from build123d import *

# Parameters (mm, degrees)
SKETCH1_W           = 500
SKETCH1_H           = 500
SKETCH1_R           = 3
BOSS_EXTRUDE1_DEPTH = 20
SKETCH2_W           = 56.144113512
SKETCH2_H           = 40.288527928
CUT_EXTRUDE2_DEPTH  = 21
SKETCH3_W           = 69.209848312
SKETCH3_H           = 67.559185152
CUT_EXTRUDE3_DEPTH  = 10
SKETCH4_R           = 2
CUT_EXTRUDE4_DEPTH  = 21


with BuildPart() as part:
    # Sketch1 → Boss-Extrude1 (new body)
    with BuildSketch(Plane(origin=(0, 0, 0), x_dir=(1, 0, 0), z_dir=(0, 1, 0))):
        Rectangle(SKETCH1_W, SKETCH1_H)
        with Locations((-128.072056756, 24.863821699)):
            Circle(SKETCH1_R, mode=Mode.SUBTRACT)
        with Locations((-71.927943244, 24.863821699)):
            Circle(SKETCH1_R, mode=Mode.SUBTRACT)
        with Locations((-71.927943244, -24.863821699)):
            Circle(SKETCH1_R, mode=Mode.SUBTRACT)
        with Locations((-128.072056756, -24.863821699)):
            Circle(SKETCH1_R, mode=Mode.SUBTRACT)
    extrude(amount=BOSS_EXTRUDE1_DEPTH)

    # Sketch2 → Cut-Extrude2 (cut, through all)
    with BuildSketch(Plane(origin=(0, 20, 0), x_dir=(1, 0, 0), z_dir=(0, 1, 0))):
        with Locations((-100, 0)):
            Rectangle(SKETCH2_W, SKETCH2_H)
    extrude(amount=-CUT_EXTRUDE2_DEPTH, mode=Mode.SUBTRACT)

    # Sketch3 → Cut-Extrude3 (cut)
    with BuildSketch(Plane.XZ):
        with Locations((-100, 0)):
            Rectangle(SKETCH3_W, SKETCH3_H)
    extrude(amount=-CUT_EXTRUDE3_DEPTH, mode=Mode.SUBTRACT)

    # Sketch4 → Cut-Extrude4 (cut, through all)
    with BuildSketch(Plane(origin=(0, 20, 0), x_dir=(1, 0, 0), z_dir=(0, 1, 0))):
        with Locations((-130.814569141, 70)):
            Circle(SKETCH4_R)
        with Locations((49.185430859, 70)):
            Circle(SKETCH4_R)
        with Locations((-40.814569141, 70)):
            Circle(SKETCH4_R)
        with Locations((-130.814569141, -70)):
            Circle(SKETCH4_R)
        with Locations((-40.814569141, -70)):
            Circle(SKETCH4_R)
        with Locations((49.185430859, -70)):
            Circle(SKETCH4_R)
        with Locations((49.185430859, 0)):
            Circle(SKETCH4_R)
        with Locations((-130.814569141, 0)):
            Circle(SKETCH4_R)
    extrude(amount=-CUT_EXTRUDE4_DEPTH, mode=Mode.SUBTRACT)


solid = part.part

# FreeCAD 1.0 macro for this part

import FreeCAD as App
import Part
import Sketcher


def add_polygon(sketch, points):
    """Adds a closed chain of lines whose ends are joined by coincident constraints."""
    first, n = sketch.GeometryCount, len(points)
    for a, b in zip(points, points[1:] + points[:1]):
        sketch.addGeometry(Part.LineSegment(App.Vector(*a, 0), App.Vector(*b, 0)), False)
    for i in range(n):
        sketch.addConstraint(Sketcher.Constraint("Coincident", first + i, 2, first + (i + 1) % n, 1))

doc = App.newDocument("Part")
body = doc.addObject("PartDesign::Body", "Body")

# Sketch on XZ plane
sketch1 = doc.addObject("Sketcher::SketchObject", "Sketch")
body.addObject(sketch1)
sketch1.AttachmentSupport = (doc.XZ_Plane, [""])
sketch1.MapMode = "FlatFace"
add_polygon(sketch1, [(-250, -250), (-250, 250), (250, 250), (250, -250)])  # lines 0-3
sketch1.addGeometry(Part.Circle(App.Vector(-128.072057, 24.863822, 0), App.Vector(0, 0, 1), 3), False)  # 4
sketch1.addGeometry(Part.Circle(App.Vector(-71.927943, 24.863822, 0), App.Vector(0, 0, 1), 3), False)  # 5
sketch1.addGeometry(Part.Circle(App.Vector(-128.072057, -24.863822, 0), App.Vector(0, 0, 1), 3), False)  # 6
sketch1.addGeometry(Part.Circle(App.Vector(-71.927943, -24.863822, 0), App.Vector(0, 0, 1), 3), False)  # 7
sketch1.addConstraint([
    Sketcher.Constraint("Vertical", 0),
    Sketcher.Constraint("Horizontal", 1),
    Sketcher.Constraint("Vertical", 2),
    Sketcher.Constraint("Horizontal", 3),
    Sketcher.Constraint("Equal", 4, 5),
    Sketcher.Constraint("Equal", 5, 6),
    Sketcher.Constraint("Equal", 6, 7),
    Sketcher.Constraint("Symmetric", 0, 2, 2, 2, -1, 1),
    Sketcher.Constraint("Symmetric", 4, 3, 6, 3, -1),
    Sketcher.Constraint("Symmetric", 5, 3, 7, 3, -1),
    Sketcher.Constraint("Horizontal", 4, 3, 5, 3),
    Sketcher.Constraint("Equal", 3, 0),
    Sketcher.Constraint("Diameter", 4, 6.0),
    Sketcher.Constraint("DistanceX", 1, 1, 1, 2, 500.0),
    Sketcher.Constraint("DistanceY", -1, 1, 4, 3, 24.863822),
    Sketcher.Constraint("DistanceX", 4, 3, -1, 1, 128.072057),
    Sketcher.Constraint("DistanceX", 5, 3, -1, 1, 71.927943),
])
pad1 = doc.addObject("PartDesign::Pad", "Pad")
body.addObject(pad1)
pad1.Profile = sketch1
pad1.Length = 20
pad1.Reversed = True

# Sketch on XZ plane
sketch2 = doc.addObject("Sketcher::SketchObject", "Sketch001")
body.addObject(sketch2)
sketch2.AttachmentSupport = (doc.XZ_Plane, [""])
sketch2.MapMode = "FlatFace"
sketch2.AttachmentOffset = App.Placement(App.Vector(0, 0, -20), App.Rotation())
add_polygon(sketch2, [(-128.072057, -20.144264), (-128.072057, 20.144264), (-71.927943, 20.144264), (-71.927943, -20.144264)])  # lines 0-3
sketch2.addConstraint([
    Sketcher.Constraint("Vertical", 0),
    Sketcher.Constraint("Horizontal", 1),
    Sketcher.Constraint("Vertical", 2),
    Sketcher.Constraint("Horizontal", 3),
    Sketcher.Constraint("DistanceX", 1, 1, 1, 2, 56.144114),
    Sketcher.Constraint("DistanceY", 0, 1, 0, 2, 40.288528),
    Sketcher.Constraint("DistanceX", 0, 2, -1, 1, 128.072057),
    Sketcher.Constraint("DistanceY", -1, 1, 0, 2, 20.144264),
])
pocket1 = doc.addObject("PartDesign::Pocket", "Pocket")
body.addObject(pocket1)
pocket1.Profile = sketch2
pocket1.Type = "ThroughAll"
pocket1.Reversed = True

# Sketch on XZ plane
sketch3 = doc.addObject("Sketcher::SketchObject", "Sketch002")
body.addObject(sketch3)
sketch3.AttachmentSupport = (doc.XZ_Plane, [""])
sketch3.MapMode = "FlatFace"
add_polygon(sketch3, [(-134.604924, 33.779593), (-134.604924, -33.779593), (-65.395076, -33.779593), (-65.395076, 33.779593)])  # lines 0-3
sketch3.addConstraint([
    Sketcher.Constraint("Vertical", 0),
    Sketcher.Constraint("Horizontal", 1),
    Sketcher.Constraint("Vertical", 2),
    Sketcher.Constraint("Horizontal", 3),
    Sketcher.Constraint("DistanceX", 1, 1, 1, 2, 69.209848),
    Sketcher.Constraint("DistanceY", 0, 2, 0, 1, 67.559185),
    Sketcher.Constraint("DistanceX", 0, 2, -1, 1, 134.604924),
    Sketcher.Constraint("DistanceY", 0, 2, -1, 1, 33.779593),
])
pocket2 = doc.addObject("PartDesign::Pocket", "Pocket001")
body.addObject(pocket2)
pocket2.Profile = sketch3
pocket2.Length = 10

# Sketch on XZ plane
sketch4 = doc.addObject("Sketcher::SketchObject", "Sketch003")
body.addObject(sketch4)
sketch4.AttachmentSupport = (doc.XZ_Plane, [""])
sketch4.MapMode = "FlatFace"
sketch4.AttachmentOffset = App.Placement(App.Vector(0, 0, -20), App.Rotation())
sketch4.addGeometry([
    Part.Circle(App.Vector(-130.814569, -70, 0), App.Vector(0, 0, 1), 2),  # 0
    Part.Circle(App.Vector(49.185431, -70, 0), App.Vector(0, 0, 1), 2),  # 1
    Part.Circle(App.Vector(-40.814569, -70, 0), App.Vector(0, 0, 1), 2),  # 2
    Part.Circle(App.Vector(-130.814569, 70, 0), App.Vector(0, 0, 1), 2),  # 3
    Part.Circle(App.Vector(-40.814569, 70, 0), App.Vector(0, 0, 1), 2),  # 4
    Part.Circle(App.Vector(49.185431, 70, 0), App.Vector(0, 0, 1), 2),  # 5
    Part.Circle(App.Vector(49.185431, 0, 0), App.Vector(0, 0, 1), 2),  # 6
    Part.Circle(App.Vector(-130.814569, 0, 0), App.Vector(0, 0, 1), 2),  # 7
], False)
sketch4.addConstraint([
    Sketcher.Constraint("Equal", 0, 1),
    Sketcher.Constraint("Equal", 1, 2),
    Sketcher.Constraint("Equal", 2, 3),
    Sketcher.Constraint("Equal", 3, 4),
    Sketcher.Constraint("Equal", 4, 5),
    Sketcher.Constraint("Equal", 5, 6),
    Sketcher.Constraint("Equal", 6, 7),
    Sketcher.Constraint("Symmetric", 0, 3, 3, 3, -1),
    Sketcher.Constraint("Symmetric", 2, 3, 4, 3, -1),
    Sketcher.Constraint("Symmetric", 1, 3, 5, 3, -1),
    Sketcher.Constraint("PointOnObject", 6, 3, -1),
    Sketcher.Constraint("PointOnObject", 7, 3, -1),
    Sketcher.Constraint("Horizontal", 0, 3, 1, 3),
    Sketcher.Constraint("Horizontal", 1, 3, 2, 3),
    Sketcher.Constraint("Vertical", 5, 3, 6, 3),
    Sketcher.Constraint("Vertical", 3, 3, 7, 3),
    Sketcher.Constraint("Diameter", 0, 4.0),
    Sketcher.Constraint("DistanceY", 0, 3, -1, 1, 70.0),
    Sketcher.Constraint("DistanceX", 0, 3, 1, 3, 180.0),
    Sketcher.Constraint("DistanceX", 0, 3, 2, 3, 90.0),
    Sketcher.Constraint("DistanceX", 0, 3, -1, 1, 130.814569),
])
pocket3 = doc.addObject("PartDesign::Pocket", "Pocket002")
body.addObject(pocket3)
pocket3.Profile = sketch4
pocket3.Type = "ThroughAll"
pocket3.Reversed = True

doc.recompute()
